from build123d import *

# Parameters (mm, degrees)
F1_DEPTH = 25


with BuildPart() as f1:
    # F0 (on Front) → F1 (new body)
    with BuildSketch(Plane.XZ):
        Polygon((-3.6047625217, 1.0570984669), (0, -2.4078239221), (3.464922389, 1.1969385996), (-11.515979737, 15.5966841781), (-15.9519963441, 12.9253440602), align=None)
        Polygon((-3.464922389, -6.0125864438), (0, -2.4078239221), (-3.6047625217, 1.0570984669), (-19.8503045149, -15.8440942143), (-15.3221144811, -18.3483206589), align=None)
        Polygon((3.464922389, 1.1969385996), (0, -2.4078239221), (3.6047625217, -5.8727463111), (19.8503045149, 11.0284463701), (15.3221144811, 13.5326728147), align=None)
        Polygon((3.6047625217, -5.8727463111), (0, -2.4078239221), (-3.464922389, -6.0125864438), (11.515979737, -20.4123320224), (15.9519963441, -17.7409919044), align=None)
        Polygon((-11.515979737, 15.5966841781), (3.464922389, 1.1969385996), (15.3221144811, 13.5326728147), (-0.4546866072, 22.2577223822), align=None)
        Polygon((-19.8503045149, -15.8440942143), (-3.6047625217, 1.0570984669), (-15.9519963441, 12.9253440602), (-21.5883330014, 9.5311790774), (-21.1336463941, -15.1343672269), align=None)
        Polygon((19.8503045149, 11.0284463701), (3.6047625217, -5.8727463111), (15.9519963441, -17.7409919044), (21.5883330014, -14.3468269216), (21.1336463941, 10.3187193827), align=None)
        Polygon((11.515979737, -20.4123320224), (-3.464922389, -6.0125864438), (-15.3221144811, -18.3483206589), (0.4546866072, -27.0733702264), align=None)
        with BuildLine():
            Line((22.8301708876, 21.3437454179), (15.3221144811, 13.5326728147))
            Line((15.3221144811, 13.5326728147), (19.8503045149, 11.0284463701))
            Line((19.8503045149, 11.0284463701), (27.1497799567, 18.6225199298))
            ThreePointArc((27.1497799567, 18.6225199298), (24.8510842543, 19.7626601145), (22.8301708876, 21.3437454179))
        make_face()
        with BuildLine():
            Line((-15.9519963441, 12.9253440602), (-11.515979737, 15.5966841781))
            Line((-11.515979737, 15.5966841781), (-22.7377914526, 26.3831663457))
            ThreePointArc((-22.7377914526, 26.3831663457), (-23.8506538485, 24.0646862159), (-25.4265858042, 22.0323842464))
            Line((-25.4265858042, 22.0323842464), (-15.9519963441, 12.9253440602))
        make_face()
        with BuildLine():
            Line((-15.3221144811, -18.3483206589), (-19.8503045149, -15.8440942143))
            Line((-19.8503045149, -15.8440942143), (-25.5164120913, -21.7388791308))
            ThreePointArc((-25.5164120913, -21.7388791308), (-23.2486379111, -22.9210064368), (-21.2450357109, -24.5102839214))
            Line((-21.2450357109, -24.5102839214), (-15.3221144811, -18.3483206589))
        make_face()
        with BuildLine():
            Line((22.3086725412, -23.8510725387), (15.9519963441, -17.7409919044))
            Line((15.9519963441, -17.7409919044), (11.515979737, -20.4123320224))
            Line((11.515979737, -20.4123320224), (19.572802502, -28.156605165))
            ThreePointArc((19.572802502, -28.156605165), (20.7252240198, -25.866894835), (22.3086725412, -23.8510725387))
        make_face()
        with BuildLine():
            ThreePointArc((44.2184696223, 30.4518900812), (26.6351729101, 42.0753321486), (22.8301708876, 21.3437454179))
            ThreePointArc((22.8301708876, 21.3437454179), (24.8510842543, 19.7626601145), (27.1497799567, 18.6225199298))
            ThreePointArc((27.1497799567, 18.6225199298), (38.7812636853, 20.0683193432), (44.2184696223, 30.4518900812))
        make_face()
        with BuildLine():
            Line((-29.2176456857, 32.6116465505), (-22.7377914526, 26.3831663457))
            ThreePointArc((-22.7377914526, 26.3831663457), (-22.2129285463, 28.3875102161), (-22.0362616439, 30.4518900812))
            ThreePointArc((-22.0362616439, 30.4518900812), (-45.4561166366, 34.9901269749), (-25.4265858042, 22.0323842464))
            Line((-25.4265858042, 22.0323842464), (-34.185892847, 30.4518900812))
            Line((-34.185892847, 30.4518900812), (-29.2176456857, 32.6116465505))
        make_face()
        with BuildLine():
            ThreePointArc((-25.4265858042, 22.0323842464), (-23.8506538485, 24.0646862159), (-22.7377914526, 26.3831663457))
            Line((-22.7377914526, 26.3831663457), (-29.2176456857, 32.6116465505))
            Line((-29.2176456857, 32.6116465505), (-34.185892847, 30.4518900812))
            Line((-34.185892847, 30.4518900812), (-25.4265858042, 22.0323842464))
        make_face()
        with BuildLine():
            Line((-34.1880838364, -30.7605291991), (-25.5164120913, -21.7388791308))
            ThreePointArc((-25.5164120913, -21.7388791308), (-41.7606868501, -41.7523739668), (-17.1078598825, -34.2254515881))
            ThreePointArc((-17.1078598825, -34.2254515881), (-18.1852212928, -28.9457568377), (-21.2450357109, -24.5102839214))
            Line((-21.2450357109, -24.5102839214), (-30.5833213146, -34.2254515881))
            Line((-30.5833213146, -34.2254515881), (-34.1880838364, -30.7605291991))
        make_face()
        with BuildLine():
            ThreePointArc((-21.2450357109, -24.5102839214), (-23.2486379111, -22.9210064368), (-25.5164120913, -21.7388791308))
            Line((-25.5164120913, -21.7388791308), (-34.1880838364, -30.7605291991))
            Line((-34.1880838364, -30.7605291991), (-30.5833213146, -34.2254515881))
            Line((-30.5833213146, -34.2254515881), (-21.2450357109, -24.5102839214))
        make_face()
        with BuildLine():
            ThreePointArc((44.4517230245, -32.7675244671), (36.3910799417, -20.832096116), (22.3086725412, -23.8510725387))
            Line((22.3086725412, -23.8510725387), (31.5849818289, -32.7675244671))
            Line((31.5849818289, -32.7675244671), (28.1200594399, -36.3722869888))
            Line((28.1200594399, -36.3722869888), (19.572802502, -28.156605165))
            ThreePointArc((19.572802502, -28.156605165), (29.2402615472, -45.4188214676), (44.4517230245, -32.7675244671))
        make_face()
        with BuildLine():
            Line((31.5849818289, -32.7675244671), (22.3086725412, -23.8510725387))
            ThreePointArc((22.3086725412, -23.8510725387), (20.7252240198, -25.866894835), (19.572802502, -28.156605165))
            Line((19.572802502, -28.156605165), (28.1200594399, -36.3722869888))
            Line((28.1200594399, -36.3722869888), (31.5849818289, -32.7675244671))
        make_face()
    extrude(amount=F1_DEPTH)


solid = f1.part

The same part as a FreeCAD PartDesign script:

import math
import FreeCAD as App
import Part
import Sketcher

V = App.Vector
Q = App.Units.Quantity

doc = App.newDocument("Part")
body = doc.addObject("PartDesign::Body", "Body")

# Sketch on XZ plane
sketch1 = doc.addObject("Sketcher::SketchObject", "Sketch")
body.addObject(sketch1)
sketch1.AttachmentSupport = (doc.XZ_Plane, [""])
sketch1.MapMode = "FlatFace"
sketch1.addGeometry([
    Part.LineSegment(V(-16, 12.9, 0), V(-21.6, 9.5, 0)),  # 0
    Part.LineSegment(V(-21.6, 9.5, 0), V(-21.1, -15.1, 0)),  # 1
    Part.LineSegment(V(-21.1, -15.1, 0), V(-19.9, -15.8, 0)),  # 2
    Part.LineSegment(V(-19.9, -15.8, 0), V(-25.5, -21.7, 0)),  # 3
    Part.ArcOfCircle(Part.Circle(V(-30.6, -34.2, 0), V(0, 0, 1), 13.5), math.radians(68), math.radians(360)),  # 4
    Part.ArcOfCircle(Part.Circle(V(-30.6, -34.2, 0), V(0, 0, 1), 13.5), math.radians(0), math.radians(46)),  # 5
    Part.LineSegment(V(-21.2, -24.5, 0), V(-15.3, -18.3, 0)),  # 6
    Part.LineSegment(V(-15.3, -18.3, 0), V(0.5, -27.1, 0)),  # 7
    Part.LineSegment(V(0.5, -27.1, 0), V(11.5, -20.4, 0)),  # 8
    Part.LineSegment(V(11.5, -20.4, 0), V(19.6, -28.2, 0)),  # 9
    Part.ArcOfCircle(Part.Circle(V(31.6, -32.8, 0), V(0, 0, 1), 12.9), math.radians(159), math.radians(360)),  # 10
    Part.ArcOfCircle(Part.Circle(V(31.6, -32.8, 0), V(0, 0, 1), 12.9), math.radians(0), math.radians(136)),  # 11
    Part.LineSegment(V(22.3, -23.9, 0), V(16, -17.7, 0)),  # 12
    Part.LineSegment(V(16, -17.7, 0), V(21.6, -14.3, 0)),  # 13
    Part.LineSegment(V(21.6, -14.3, 0), V(21.1, 10.3, 0)),  # 14
    Part.LineSegment(V(21.1, 10.3, 0), V(19.9, 11, 0)),  # 15
    Part.LineSegment(V(19.9, 11, 0), V(27.1, 18.6, 0)),  # 16
    Part.ArcOfCircle(Part.Circle(V(31.6, 30.5, 0), V(0, 0, 1), 12.6), math.radians(-111), math.radians(0)),  # 17
    Part.ArcOfCircle(Part.Circle(V(31.6, 30.5, 0), V(0, 0, 1), 12.6), math.radians(0), math.radians(226)),  # 18
    Part.LineSegment(V(22.8, 21.3, 0), V(15.3, 13.5, 0)),  # 19
    Part.LineSegment(V(15.3, 13.5, 0), V(-0.5, 22.3, 0)),  # 20
    Part.LineSegment(V(-0.5, 22.3, 0), V(-11.5, 15.6, 0)),  # 21
    Part.LineSegment(V(-11.5, 15.6, 0), V(-22.7, 26.4, 0)),  # 22
    Part.ArcOfCircle(Part.Circle(V(-34.2, 30.5, 0), V(0, 0, 1), 12.1), math.radians(-19.57), math.radians(0)),  # 23
    Part.ArcOfCircle(Part.Circle(V(-34.2, 30.5, 0), V(0, 0, 1), 12.1), math.radians(0), math.radians(316)),  # 24
    Part.LineSegment(V(-25.4, 22, 0), V(-16, 12.9, 0)),  # 25
], False)
sketch1.addConstraint([
    Sketcher.Constraint("Coincident", 0, 2, 1, 1),
    Sketcher.Constraint("Coincident", 1, 2, 2, 1),
    Sketcher.Constraint("Coincident", 2, 2, 3, 1),
    Sketcher.Constraint("Coincident", 3, 2, 4, 1),
    Sketcher.Constraint("Tangent", 4, 2, 5, 1),
    Sketcher.Constraint("Coincident", 5, 2, 6, 1),
    Sketcher.Constraint("Coincident", 6, 2, 7, 1),
    Sketcher.Constraint("Coincident", 7, 2, 8, 1),
    Sketcher.Constraint("Coincident", 8, 2, 9, 1),
    Sketcher.Constraint("Coincident", 9, 2, 10, 1),
    Sketcher.Constraint("Tangent", 10, 2, 11, 1),
    Sketcher.Constraint("Coincident", 11, 2, 12, 1),
    Sketcher.Constraint("Coincident", 12, 2, 13, 1),
    Sketcher.Constraint("Coincident", 13, 2, 14, 1),
    Sketcher.Constraint("Coincident", 14, 2, 15, 1),
    Sketcher.Constraint("Coincident", 15, 2, 16, 1),
    Sketcher.Constraint("Coincident", 16, 2, 17, 1),
    Sketcher.Constraint("Tangent", 17, 2, 18, 1),
    Sketcher.Constraint("Coincident", 18, 2, 19, 1),
    Sketcher.Constraint("Coincident", 19, 2, 20, 1),
    Sketcher.Constraint("Coincident", 20, 2, 21, 1),
    Sketcher.Constraint("Coincident", 21, 2, 22, 1),
    Sketcher.Constraint("Coincident", 22, 2, 23, 1),
    Sketcher.Constraint("Tangent", 23, 2, 24, 1),
    Sketcher.Constraint("Coincident", 24, 2, 25, 1),
    Sketcher.Constraint("Coincident", 25, 2, 0, 1),
    Sketcher.Constraint("Equal", 4, 5),
    Sketcher.Constraint("Equal", 10, 11),
    Sketcher.Constraint("Equal", 17, 18),
    Sketcher.Constraint("Equal", 23, 24),
    Sketcher.Constraint("Parallel", 3, 6),
    Sketcher.Constraint("Parallel", 2, 7),
    Sketcher.Constraint("Parallel", 0, 8),
    Sketcher.Constraint("Perpendicular", 6, 9),
    Sketcher.Constraint("Parallel", 9, 12),
    Sketcher.Constraint("Parallel", 8, 13),
    Sketcher.Constraint("Parallel", 1, 14),
    Sketcher.Constraint("Parallel", 7, 15),
    Sketcher.Constraint("Perpendicular", 12, 16),
    Sketcher.Constraint("Parallel", 16, 19),
    Sketcher.Constraint("Parallel", 15, 20),
    Sketcher.Constraint("Parallel", 13, 21),
    Sketcher.Constraint("Perpendicular", 19, 22),
    Sketcher.Constraint("Parallel", 22, 25),
    Sketcher.Constraint("Horizontal", 18, 3, 23, 3),
    Sketcher.Constraint("Horizontal", 5, 3, 4, 2),
    Sketcher.Constraint("Horizontal", 11, 3, 10, 2),
    Sketcher.Constraint("Horizontal", 24, 3, 17, 2),
    Sketcher.Constraint("Horizontal", 17, 2, 23, 2),
    Sketcher.Constraint("Vertical", 11, 3, 17, 3),
    Sketcher.Constraint("Equal", 0, 13),
    Sketcher.Constraint("Equal", 1, 14),
    Sketcher.Constraint("Equal", 2, 15),
    Sketcher.Constraint("Equal", 7, 20),
    Sketcher.Constraint("Equal", 8, 21),
    Sketcher.Constraint("Radius", 4, Q("13.475461 mm")),
    Sketcher.Constraint("Radius", 10, Q("12.866741 mm")),
    Sketcher.Constraint("Radius", 23, Q("12.149631 mm")),
    Sketcher.Constraint("Radius", 17, Q("12.633488 mm")),
    Sketcher.Constraint("DistanceX", 6, 2, 7, 2, Q("15.776801 mm")),
    Sketcher.Constraint("DistanceY", 14, 2, 16, 2, Q("8.303801 mm")),
    Sketcher.Constraint("DistanceX", 16, 2, 17, 3, Q("4.435202 mm")),
    Sketcher.Constraint("DistanceY", 15, 2, 18, 2, Q("10.315299 mm")),
    Sketcher.Constraint("DistanceX", 23, 3, 22, 2, Q("11.448101 mm")),
    Sketcher.Constraint("Distance", 0, Q("6.579411 mm")),
    Sketcher.Constraint("Distance", 2, Q("1.466519 mm")),
    Sketcher.Constraint("Distance", 16, Q("10.53339 mm")),
    Sketcher.Constraint("Distance", 19, Q("10.834379 mm")),
    Sketcher.Constraint("DistanceX", 4, 3, -1, 1, Q("30.583321 mm")),
    Sketcher.Constraint("DistanceY", 4, 3, -1, 1, Q("34.225452 mm")),
    Sketcher.Constraint("DistanceX", -1, 1, 10, 3, Q("31.584982 mm")),
    Sketcher.Constraint("DistanceY", -1, 1, 17, 3, Q("30.45189 mm")),
    Sketcher.Constraint("DistanceY", -1, 1, 0, 2, Q("9.531179 mm")),
    Sketcher.Constraint("DistanceY", 3, 2, -1, 1, Q("21.738879 mm")),
    Sketcher.Constraint("DistanceY", 6, 2, -1, 1, Q("18.348321 mm")),
    Sketcher.Constraint("DistanceY", 7, 2, -1, 1, Q("27.07337 mm")),
    Sketcher.Constraint("DistanceX", -1, 1, 8, 2, Q("11.51598 mm")),
    Sketcher.Constraint("DistanceY", 12, 2, -1, 1, Q("17.740992 mm")),
    Sketcher.Constraint("DistanceX", 21, 2, -1, 1, Q("11.51598 mm")),
    Sketcher.Constraint("DistanceX", 22, 2, -1, 1, Q("22.737791 mm")),
    Sketcher.Constraint("DistanceX", 23, 3, 0, 2, Q("12.59756 mm")),
    Sketcher.Constraint("DistanceX", 9, 2, 10, 3, Q("12.012179 mm")),
])
pad1 = doc.addObject("PartDesign::Pad", "Pad")
body.addObject(pad1)
pad1.Profile = sketch1
pad1.Length = 25

doc.recompute()
